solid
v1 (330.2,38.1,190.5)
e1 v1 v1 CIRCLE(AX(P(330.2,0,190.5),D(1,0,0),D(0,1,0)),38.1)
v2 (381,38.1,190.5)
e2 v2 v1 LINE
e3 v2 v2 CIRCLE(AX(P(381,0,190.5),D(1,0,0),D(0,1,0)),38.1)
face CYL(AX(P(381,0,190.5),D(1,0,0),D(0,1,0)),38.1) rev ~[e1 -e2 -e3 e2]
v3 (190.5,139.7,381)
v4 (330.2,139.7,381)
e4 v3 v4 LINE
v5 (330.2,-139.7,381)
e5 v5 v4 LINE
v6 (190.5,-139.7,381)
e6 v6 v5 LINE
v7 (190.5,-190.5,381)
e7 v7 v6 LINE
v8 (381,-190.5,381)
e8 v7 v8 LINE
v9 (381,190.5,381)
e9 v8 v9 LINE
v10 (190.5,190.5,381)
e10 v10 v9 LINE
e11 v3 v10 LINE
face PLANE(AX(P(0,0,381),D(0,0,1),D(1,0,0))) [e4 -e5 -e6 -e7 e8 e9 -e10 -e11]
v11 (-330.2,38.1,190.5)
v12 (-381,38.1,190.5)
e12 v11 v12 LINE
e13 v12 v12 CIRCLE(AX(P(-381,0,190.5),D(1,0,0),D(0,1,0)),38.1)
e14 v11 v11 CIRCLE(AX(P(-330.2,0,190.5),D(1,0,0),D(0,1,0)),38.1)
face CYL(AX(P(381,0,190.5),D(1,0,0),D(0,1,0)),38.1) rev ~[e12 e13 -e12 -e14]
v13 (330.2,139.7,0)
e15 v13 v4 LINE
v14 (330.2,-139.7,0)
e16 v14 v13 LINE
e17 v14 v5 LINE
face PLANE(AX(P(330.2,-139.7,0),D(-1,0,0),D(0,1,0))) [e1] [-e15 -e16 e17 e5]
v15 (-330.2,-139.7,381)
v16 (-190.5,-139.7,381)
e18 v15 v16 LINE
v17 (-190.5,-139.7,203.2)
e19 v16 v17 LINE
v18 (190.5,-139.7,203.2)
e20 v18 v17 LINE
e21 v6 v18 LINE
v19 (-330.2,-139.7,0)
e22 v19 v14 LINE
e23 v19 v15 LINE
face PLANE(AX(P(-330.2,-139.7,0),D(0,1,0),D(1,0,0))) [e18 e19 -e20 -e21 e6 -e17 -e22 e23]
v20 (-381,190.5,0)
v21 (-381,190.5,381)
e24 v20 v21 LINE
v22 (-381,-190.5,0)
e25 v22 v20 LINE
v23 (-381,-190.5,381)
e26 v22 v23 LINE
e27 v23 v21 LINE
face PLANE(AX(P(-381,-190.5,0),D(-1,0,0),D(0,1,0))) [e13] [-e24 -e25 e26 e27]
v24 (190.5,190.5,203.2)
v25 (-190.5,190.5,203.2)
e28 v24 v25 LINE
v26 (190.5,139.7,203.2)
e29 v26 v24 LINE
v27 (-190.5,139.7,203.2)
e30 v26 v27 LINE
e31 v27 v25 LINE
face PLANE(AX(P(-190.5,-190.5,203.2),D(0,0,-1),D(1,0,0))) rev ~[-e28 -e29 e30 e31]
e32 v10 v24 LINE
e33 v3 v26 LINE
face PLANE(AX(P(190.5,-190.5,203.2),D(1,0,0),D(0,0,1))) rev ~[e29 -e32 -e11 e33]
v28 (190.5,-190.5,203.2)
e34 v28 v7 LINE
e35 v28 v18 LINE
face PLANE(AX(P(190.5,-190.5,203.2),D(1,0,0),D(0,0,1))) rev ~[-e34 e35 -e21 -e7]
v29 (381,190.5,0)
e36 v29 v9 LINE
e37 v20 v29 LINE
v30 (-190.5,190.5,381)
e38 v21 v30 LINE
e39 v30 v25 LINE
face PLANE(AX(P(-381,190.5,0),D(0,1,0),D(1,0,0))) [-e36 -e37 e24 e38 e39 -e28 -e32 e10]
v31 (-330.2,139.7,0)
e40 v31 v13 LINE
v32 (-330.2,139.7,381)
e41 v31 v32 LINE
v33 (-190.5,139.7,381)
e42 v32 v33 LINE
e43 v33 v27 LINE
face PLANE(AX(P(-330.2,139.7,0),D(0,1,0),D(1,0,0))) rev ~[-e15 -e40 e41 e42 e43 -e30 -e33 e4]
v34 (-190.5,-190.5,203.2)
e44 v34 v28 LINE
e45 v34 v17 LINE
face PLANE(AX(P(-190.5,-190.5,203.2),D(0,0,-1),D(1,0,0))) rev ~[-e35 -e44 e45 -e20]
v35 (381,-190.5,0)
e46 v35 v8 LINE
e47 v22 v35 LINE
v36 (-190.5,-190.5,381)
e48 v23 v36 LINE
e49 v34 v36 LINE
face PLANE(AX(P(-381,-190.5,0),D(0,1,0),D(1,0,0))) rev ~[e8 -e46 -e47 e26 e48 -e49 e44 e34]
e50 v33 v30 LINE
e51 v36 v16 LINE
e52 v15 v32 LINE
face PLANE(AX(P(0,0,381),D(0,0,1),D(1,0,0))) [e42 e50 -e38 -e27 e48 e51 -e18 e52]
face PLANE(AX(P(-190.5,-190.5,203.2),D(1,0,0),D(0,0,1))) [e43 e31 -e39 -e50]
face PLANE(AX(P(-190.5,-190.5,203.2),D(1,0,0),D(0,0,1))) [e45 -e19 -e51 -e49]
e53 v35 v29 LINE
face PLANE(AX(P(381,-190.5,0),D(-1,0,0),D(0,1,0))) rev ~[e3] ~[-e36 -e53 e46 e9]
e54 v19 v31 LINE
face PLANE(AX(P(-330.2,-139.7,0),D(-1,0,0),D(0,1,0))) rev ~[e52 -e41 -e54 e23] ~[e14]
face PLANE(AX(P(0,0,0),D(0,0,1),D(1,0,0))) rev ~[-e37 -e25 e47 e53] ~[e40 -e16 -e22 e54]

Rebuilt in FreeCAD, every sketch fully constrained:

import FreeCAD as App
import Part
import Sketcher
from FreeCAD import Vector
Q = App.Units.Quantity

doc = App.newDocument("Part")
params = doc.addObject("Spreadsheet::Sheet", "Params")
for row, (alias, value) in enumerate([
    ("sketch1_width", "30 in"),
    ("sketch1_width2", "26 in"),
    ("sketch1_height", "15 in"),
    ("sketch1_height2", "11 in"),
    ("pad1_length", "15 in"),
    ("sketch2_width", "15 in"),
    ("sketch2_height", "7 in"),
    ("pocket1_length", "50 in"),
    ("sketch3_diameter", "3 in"),
    ("pocket2_length", "50 in"),
], start=1):
    params.set(f"A{row}", alias)
    params.set(f"B{row}", "=" + value)
    params.setAlias(f"B{row}", alias)

body = doc.addObject("PartDesign::Body", "Body")

# Sketch on XY plane
sketch1 = body.newObject("Sketcher::SketchObject", "Sketch")
sketch1.AttachmentSupport = (doc.getObject("XY_Plane"), [""])
sketch1.MapMode = "FlatFace"
sketch1.addGeometry(Part.LineSegment(Vector(-381, 190.5, 0), Vector(-381, -190.5, 0)), False)
sketch1.addGeometry(Part.LineSegment(Vector(-381, -190.5, 0), Vector(381, -190.5, 0)), False)
sketch1.addGeometry(Part.LineSegment(Vector(381, -190.5, 0), Vector(381, 190.5, 0)), False)
sketch1.addGeometry(Part.LineSegment(Vector(381, 190.5, 0), Vector(-381, 190.5, 0)), False)
sketch1.addGeometry(Part.LineSegment(Vector(330.2, -139.7, 0), Vector(-330.2, -139.7, 0)), False)
sketch1.addGeometry(Part.LineSegment(Vector(-330.2, -139.7, 0), Vector(-330.2, 139.7, 0)), False)
sketch1.addGeometry(Part.LineSegment(Vector(-330.2, 139.7, 0), Vector(330.2, 139.7, 0)), False)
sketch1.addGeometry(Part.LineSegment(Vector(330.2, 139.7, 0), Vector(330.2, -139.7, 0)), False)
sketch1.addConstraint(Sketcher.Constraint("Coincident", 0, 2, 1, 1))
sketch1.addConstraint(Sketcher.Constraint("Coincident", 1, 2, 2, 1))
sketch1.addConstraint(Sketcher.Constraint("Coincident", 2, 2, 3, 1))
sketch1.addConstraint(Sketcher.Constraint("Coincident", 3, 2, 0, 1))
sketch1.addConstraint(Sketcher.Constraint("Coincident", 4, 2, 5, 1))
sketch1.addConstraint(Sketcher.Constraint("Coincident", 5, 2, 6, 1))
sketch1.addConstraint(Sketcher.Constraint("Coincident", 6, 2, 7, 1))
sketch1.addConstraint(Sketcher.Constraint("Coincident", 7, 2, 4, 1))
sketch1.addConstraint(Sketcher.Constraint("Vertical", 0))
sketch1.addConstraint(Sketcher.Constraint("Horizontal", 1))
sketch1.addConstraint(Sketcher.Constraint("Vertical", 2))
sketch1.addConstraint(Sketcher.Constraint("Horizontal", 3))
sketch1.addConstraint(Sketcher.Constraint("Horizontal", 4))
sketch1.addConstraint(Sketcher.Constraint("Vertical", 5))
sketch1.addConstraint(Sketcher.Constraint("Horizontal", 6))
sketch1.addConstraint(Sketcher.Constraint("Vertical", 7))
sketch1.addConstraint(Sketcher.Constraint("Symmetric", 0, 2, 2, 2, -1, 1))
sketch1.addConstraint(Sketcher.Constraint("Symmetric", 4, 2, 6, 2, -1, 1))
sketch1.addConstraint(Sketcher.Constraint("DistanceX", 1, 1, 1, 2, Q("30 in")))
sketch1.addConstraint(Sketcher.Constraint("DistanceX", 4, 2, 4, 1, Q("26 in")))
sketch1.addConstraint(Sketcher.Constraint("DistanceY", 0, 2, 0, 1, Q("15 in")))
sketch1.addConstraint(Sketcher.Constraint("DistanceY", 5, 1, 5, 2, Q("11 in")))
sketch1.setExpression("Constraints[18]", "Params.sketch1_width")
sketch1.setExpression("Constraints[19]", "Params.sketch1_width2")
sketch1.setExpression("Constraints[20]", "Params.sketch1_height")
sketch1.setExpression("Constraints[21]", "Params.sketch1_height2")
pad1 = body.newObject("PartDesign::Pad", "Pad")
pad1.Profile = sketch1
pad1.setExpression("Length", "Params.pad1_length")

# Sketch on XZ plane
sketch2 = body.newObject("Sketcher::SketchObject", "Sketch001")
sketch2.AttachmentSupport = (doc.getObject("XZ_Plane"), [""])
sketch2.MapMode = "FlatFace"
sketch2.AttachmentOffset = App.Placement(Vector(0, 0, 7.5 * 25.4), App.Rotation())
sketch2.addGeometry(Part.LineSegment(Vector(-190.5, 381, 0), Vector(-190.5, 203.2, 0)), False)
sketch2.addGeometry(Part.LineSegment(Vector(-190.5, 203.2, 0), Vector(190.5, 203.2, 0)), False)
sketch2.addGeometry(Part.LineSegment(Vector(190.5, 203.2, 0), Vector(190.5, 381, 0)), False)
sketch2.addGeometry(Part.LineSegment(Vector(190.5, 381, 0), Vector(-190.5, 381, 0)), False)
sketch2.addConstraint(Sketcher.Constraint("Coincident", 0, 2, 1, 1))
sketch2.addConstraint(Sketcher.Constraint("Coincident", 1, 2, 2, 1))
sketch2.addConstraint(Sketcher.Constraint("Coincident", 2, 2, 3, 1))
sketch2.addConstraint(Sketcher.Constraint("Coincident", 3, 2, 0, 1))
sketch2.addConstraint(Sketcher.Constraint("Vertical", 0))
sketch2.addConstraint(Sketcher.Constraint("Horizontal", 1))
sketch2.addConstraint(Sketcher.Constraint("Vertical", 2))
sketch2.addConstraint(Sketcher.Constraint("Horizontal", 3))
sketch2.addConstraint(Sketcher.Constraint("DistanceX", 1, 1, 1, 2, Q("15 in")))
sketch2.addConstraint(Sketcher.Constraint("DistanceY", 0, 2, 0, 1, Q("7 in")))
sketch2.addConstraint(Sketcher.Constraint("DistanceY", -1, 1, 0, 2, Q("8 in")))
sketch2.addConstraint(Sketcher.Constraint("DistanceX", 0, 2, -1, 1, Q("7.5 in")))
sketch2.setExpression("Constraints[8]", "Params.sketch2_width")
sketch2.setExpression("Constraints[9]", "Params.sketch2_height")
pocket1 = body.newObject("PartDesign::Pocket", "Pocket")
pocket1.Profile = sketch2
pocket1.setExpression("Length", "Params.pocket1_length")

# Sketch on YZ plane
sketch3 = body.newObject("Sketcher::SketchObject", "Sketch002")
sketch3.AttachmentSupport = (doc.getObject("YZ_Plane"), [""])
sketch3.MapMode = "FlatFace"
sketch3.AttachmentOffset = App.Placement(Vector(0, 0, 15 * 25.4), App.Rotation())
sketch3.addGeometry(Part.Circle(Vector(0, 190.5, 0), Vector(0, 0, 1), 38.1), False)
sketch3.addConstraint(Sketcher.Constraint("PointOnObject", 0, 3, -2))
sketch3.addConstraint(Sketcher.Constraint("Diameter", 0, Q("3 in")))
sketch3.addConstraint(Sketcher.Constraint("DistanceY", -1, 1, 0, 3, Q("7.5 in")))
sketch3.setExpression("Constraints[1]", "Params.sketch3_diameter")
pocket2 = body.newObject("PartDesign::Pocket", "Pocket001")
pocket2.Profile = sketch3
pocket2.setExpression("Length", "Params.pocket2_length")

doc.recompute()
